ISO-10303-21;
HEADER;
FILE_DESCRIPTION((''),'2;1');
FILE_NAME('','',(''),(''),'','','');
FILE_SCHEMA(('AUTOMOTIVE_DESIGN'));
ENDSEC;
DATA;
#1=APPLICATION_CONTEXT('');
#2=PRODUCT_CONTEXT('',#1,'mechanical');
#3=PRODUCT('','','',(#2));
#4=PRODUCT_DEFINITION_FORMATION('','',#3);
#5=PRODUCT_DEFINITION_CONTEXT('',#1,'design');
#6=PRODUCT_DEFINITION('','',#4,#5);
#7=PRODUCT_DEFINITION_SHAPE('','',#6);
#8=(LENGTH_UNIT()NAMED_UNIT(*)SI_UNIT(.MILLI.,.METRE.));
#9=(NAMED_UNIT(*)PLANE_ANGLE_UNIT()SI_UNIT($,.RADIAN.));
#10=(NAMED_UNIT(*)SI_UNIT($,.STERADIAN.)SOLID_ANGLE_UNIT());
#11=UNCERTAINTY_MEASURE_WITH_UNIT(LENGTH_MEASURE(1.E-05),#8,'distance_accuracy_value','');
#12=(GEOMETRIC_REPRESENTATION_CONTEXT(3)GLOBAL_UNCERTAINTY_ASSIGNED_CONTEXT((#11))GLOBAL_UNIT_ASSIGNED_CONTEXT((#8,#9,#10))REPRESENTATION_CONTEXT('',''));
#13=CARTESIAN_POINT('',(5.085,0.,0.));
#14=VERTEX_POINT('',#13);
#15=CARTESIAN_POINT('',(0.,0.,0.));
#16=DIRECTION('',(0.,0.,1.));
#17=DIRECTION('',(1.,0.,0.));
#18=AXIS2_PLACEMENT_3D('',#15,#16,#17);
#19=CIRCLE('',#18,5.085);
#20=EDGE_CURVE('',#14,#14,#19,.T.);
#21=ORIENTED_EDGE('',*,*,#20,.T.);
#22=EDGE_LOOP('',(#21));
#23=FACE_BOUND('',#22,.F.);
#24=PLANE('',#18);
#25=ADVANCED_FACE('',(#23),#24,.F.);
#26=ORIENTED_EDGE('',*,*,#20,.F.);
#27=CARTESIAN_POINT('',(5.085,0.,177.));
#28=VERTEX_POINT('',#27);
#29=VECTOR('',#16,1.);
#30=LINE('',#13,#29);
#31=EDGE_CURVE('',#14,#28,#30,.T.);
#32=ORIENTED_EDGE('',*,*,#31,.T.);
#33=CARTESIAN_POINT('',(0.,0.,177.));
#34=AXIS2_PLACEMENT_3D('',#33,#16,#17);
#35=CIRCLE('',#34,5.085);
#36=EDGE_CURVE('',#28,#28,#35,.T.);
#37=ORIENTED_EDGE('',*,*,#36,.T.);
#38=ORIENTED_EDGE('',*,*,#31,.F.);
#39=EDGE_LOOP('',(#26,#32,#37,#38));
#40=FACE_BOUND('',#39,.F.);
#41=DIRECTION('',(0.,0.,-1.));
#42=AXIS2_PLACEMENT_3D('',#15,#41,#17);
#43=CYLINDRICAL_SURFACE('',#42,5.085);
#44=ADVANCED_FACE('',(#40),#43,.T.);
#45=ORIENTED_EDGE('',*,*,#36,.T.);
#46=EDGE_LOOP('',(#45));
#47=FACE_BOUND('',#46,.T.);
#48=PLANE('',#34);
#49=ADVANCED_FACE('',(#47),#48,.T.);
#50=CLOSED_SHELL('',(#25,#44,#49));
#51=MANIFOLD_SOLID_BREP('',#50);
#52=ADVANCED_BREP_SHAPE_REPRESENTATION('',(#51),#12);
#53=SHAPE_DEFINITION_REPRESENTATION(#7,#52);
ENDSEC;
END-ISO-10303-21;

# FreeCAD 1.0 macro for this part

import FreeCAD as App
import Part
import Sketcher

V = App.Vector
Q = App.Units.Quantity

doc = App.newDocument("Part")
params = doc.addObject("Spreadsheet::Sheet", "Params")
for row, (alias, value) in enumerate([
    ("sketch1_diameter", "10.17 mm"),
    ("pad1_length", "177 mm"),
], start=1):
    params.set(f"A{row}", alias)
    params.set(f"B{row}", "=" + value)
    params.setAlias(f"B{row}", alias)

body = doc.addObject("PartDesign::Body", "Body")

sketch1 = doc.addObject("Sketcher::SketchObject", "Sketch")
body.addObject(sketch1)
sketch1.AttachmentSupport = (doc.XY_Plane, [""])
sketch1.MapMode = "FlatFace"
sketch1.addGeometry(Part.Circle(V(0, 0, 0), V(0, 0, 1), 5), False)
sketch1.addConstraint([
    Sketcher.Constraint("Coincident", 0, 3, -1, 1),
    Sketcher.Constraint("Diameter", 0, Q("10.17 mm")),
])
sketch1.setExpression("Constraints[1]", "Params.sketch1_diameter")
pad1 = doc.addObject("PartDesign::Pad", "Pad")
body.addObject(pad1)
pad1.Profile = sketch1
pad1.setExpression("Length", "Params.pad1_length")

doc.recompute()
